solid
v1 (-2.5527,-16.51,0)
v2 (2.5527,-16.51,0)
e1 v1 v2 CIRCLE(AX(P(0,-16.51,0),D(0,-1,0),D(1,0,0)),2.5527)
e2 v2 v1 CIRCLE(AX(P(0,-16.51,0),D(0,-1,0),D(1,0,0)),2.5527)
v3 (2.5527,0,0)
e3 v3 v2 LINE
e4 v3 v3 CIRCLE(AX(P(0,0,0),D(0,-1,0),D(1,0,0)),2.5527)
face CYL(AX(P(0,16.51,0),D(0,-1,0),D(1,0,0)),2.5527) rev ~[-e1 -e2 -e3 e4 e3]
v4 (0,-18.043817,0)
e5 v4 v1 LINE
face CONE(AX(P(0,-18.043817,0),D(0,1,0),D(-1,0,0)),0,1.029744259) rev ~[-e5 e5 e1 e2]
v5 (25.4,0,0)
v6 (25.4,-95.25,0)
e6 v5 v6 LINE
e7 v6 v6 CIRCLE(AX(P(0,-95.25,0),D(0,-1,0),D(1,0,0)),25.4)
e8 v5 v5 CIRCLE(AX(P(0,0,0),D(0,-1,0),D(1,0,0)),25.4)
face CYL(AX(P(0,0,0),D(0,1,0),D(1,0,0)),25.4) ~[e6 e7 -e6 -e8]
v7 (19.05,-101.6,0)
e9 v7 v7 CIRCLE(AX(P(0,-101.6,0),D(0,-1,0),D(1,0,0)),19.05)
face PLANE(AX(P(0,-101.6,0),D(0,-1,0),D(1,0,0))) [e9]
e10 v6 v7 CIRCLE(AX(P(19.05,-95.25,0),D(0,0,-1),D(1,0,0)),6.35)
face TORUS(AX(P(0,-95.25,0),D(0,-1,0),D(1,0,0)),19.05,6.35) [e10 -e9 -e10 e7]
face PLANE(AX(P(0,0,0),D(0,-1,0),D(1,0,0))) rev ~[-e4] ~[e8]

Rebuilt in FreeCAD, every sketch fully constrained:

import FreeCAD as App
import Part
import Sketcher

V = App.Vector
Q = App.Units.Quantity


def edges_at(feature, points):
    """Names of the edges that pass closest to the given points."""
    edges = feature.Shape.Edges
    near = lambda p: min(range(len(edges)), key=lambda i: edges[i].distToShape(Part.Vertex(*p))[0])
    return sorted({f"Edge{near(p) + 1}" for p in points})

doc = App.newDocument("Part")
body = doc.addObject("PartDesign::Body", "Body")

# Sketch on XZ plane
sketch1 = body.newObject("Sketcher::SketchObject", "Sketch")
sketch1.AttachmentSupport = (doc.getObject("XZ_Plane"), [""])
sketch1.MapMode = "FlatFace"
sketch1.addGeometry(Part.Circle(V(0, 0, 0), V(0, 0, 1), 25), False)
sketch1.addConstraint([
    Sketcher.Constraint("Coincident", 0, 3, -1, 1),
    Sketcher.Constraint("Diameter", 0, Q("2 in")),
])
pad1 = body.newObject("PartDesign::Pad", "Pad")
pad1.Profile = sketch1
pad1.Length = Q("4 in")
doc.recompute()

fillet = body.newObject("PartDesign::Fillet", "Fillet")
fillet.Base = (pad1, edges_at(pad1, [(-25.4, -101.6, 0)]))
fillet.Radius = Q("0.25 in")

# Sketch on XZ plane
sketch2 = body.newObject("Sketcher::SketchObject", "Sketch001")
sketch2.AttachmentSupport = (doc.getObject("XZ_Plane"), [""])
sketch2.MapMode = "FlatFace"
sketch2.addGeometry(Part.Circle(V(0, 0, 0), V(0, 0, 1), 2.6), False)
sketch2.addConstraint([
    Sketcher.Constraint("Coincident", 0, 3, -1, 1),
    Sketcher.Constraint("Diameter", 0, Q("0.201 in")),
])
doc.recompute()
hole = body.newObject("PartDesign::Hole", "Hole")
hole.Profile = sketch2
hole.ThreadType = "None"
hole.Diameter = Q("0.201 in")
hole.DepthType = "Dimension"
hole.Depth = Q("0.65 in")
hole.DrillPoint = "Angled"
hole.DrillPointAngle = 118
hole.Reversed = True

doc.recompute()
